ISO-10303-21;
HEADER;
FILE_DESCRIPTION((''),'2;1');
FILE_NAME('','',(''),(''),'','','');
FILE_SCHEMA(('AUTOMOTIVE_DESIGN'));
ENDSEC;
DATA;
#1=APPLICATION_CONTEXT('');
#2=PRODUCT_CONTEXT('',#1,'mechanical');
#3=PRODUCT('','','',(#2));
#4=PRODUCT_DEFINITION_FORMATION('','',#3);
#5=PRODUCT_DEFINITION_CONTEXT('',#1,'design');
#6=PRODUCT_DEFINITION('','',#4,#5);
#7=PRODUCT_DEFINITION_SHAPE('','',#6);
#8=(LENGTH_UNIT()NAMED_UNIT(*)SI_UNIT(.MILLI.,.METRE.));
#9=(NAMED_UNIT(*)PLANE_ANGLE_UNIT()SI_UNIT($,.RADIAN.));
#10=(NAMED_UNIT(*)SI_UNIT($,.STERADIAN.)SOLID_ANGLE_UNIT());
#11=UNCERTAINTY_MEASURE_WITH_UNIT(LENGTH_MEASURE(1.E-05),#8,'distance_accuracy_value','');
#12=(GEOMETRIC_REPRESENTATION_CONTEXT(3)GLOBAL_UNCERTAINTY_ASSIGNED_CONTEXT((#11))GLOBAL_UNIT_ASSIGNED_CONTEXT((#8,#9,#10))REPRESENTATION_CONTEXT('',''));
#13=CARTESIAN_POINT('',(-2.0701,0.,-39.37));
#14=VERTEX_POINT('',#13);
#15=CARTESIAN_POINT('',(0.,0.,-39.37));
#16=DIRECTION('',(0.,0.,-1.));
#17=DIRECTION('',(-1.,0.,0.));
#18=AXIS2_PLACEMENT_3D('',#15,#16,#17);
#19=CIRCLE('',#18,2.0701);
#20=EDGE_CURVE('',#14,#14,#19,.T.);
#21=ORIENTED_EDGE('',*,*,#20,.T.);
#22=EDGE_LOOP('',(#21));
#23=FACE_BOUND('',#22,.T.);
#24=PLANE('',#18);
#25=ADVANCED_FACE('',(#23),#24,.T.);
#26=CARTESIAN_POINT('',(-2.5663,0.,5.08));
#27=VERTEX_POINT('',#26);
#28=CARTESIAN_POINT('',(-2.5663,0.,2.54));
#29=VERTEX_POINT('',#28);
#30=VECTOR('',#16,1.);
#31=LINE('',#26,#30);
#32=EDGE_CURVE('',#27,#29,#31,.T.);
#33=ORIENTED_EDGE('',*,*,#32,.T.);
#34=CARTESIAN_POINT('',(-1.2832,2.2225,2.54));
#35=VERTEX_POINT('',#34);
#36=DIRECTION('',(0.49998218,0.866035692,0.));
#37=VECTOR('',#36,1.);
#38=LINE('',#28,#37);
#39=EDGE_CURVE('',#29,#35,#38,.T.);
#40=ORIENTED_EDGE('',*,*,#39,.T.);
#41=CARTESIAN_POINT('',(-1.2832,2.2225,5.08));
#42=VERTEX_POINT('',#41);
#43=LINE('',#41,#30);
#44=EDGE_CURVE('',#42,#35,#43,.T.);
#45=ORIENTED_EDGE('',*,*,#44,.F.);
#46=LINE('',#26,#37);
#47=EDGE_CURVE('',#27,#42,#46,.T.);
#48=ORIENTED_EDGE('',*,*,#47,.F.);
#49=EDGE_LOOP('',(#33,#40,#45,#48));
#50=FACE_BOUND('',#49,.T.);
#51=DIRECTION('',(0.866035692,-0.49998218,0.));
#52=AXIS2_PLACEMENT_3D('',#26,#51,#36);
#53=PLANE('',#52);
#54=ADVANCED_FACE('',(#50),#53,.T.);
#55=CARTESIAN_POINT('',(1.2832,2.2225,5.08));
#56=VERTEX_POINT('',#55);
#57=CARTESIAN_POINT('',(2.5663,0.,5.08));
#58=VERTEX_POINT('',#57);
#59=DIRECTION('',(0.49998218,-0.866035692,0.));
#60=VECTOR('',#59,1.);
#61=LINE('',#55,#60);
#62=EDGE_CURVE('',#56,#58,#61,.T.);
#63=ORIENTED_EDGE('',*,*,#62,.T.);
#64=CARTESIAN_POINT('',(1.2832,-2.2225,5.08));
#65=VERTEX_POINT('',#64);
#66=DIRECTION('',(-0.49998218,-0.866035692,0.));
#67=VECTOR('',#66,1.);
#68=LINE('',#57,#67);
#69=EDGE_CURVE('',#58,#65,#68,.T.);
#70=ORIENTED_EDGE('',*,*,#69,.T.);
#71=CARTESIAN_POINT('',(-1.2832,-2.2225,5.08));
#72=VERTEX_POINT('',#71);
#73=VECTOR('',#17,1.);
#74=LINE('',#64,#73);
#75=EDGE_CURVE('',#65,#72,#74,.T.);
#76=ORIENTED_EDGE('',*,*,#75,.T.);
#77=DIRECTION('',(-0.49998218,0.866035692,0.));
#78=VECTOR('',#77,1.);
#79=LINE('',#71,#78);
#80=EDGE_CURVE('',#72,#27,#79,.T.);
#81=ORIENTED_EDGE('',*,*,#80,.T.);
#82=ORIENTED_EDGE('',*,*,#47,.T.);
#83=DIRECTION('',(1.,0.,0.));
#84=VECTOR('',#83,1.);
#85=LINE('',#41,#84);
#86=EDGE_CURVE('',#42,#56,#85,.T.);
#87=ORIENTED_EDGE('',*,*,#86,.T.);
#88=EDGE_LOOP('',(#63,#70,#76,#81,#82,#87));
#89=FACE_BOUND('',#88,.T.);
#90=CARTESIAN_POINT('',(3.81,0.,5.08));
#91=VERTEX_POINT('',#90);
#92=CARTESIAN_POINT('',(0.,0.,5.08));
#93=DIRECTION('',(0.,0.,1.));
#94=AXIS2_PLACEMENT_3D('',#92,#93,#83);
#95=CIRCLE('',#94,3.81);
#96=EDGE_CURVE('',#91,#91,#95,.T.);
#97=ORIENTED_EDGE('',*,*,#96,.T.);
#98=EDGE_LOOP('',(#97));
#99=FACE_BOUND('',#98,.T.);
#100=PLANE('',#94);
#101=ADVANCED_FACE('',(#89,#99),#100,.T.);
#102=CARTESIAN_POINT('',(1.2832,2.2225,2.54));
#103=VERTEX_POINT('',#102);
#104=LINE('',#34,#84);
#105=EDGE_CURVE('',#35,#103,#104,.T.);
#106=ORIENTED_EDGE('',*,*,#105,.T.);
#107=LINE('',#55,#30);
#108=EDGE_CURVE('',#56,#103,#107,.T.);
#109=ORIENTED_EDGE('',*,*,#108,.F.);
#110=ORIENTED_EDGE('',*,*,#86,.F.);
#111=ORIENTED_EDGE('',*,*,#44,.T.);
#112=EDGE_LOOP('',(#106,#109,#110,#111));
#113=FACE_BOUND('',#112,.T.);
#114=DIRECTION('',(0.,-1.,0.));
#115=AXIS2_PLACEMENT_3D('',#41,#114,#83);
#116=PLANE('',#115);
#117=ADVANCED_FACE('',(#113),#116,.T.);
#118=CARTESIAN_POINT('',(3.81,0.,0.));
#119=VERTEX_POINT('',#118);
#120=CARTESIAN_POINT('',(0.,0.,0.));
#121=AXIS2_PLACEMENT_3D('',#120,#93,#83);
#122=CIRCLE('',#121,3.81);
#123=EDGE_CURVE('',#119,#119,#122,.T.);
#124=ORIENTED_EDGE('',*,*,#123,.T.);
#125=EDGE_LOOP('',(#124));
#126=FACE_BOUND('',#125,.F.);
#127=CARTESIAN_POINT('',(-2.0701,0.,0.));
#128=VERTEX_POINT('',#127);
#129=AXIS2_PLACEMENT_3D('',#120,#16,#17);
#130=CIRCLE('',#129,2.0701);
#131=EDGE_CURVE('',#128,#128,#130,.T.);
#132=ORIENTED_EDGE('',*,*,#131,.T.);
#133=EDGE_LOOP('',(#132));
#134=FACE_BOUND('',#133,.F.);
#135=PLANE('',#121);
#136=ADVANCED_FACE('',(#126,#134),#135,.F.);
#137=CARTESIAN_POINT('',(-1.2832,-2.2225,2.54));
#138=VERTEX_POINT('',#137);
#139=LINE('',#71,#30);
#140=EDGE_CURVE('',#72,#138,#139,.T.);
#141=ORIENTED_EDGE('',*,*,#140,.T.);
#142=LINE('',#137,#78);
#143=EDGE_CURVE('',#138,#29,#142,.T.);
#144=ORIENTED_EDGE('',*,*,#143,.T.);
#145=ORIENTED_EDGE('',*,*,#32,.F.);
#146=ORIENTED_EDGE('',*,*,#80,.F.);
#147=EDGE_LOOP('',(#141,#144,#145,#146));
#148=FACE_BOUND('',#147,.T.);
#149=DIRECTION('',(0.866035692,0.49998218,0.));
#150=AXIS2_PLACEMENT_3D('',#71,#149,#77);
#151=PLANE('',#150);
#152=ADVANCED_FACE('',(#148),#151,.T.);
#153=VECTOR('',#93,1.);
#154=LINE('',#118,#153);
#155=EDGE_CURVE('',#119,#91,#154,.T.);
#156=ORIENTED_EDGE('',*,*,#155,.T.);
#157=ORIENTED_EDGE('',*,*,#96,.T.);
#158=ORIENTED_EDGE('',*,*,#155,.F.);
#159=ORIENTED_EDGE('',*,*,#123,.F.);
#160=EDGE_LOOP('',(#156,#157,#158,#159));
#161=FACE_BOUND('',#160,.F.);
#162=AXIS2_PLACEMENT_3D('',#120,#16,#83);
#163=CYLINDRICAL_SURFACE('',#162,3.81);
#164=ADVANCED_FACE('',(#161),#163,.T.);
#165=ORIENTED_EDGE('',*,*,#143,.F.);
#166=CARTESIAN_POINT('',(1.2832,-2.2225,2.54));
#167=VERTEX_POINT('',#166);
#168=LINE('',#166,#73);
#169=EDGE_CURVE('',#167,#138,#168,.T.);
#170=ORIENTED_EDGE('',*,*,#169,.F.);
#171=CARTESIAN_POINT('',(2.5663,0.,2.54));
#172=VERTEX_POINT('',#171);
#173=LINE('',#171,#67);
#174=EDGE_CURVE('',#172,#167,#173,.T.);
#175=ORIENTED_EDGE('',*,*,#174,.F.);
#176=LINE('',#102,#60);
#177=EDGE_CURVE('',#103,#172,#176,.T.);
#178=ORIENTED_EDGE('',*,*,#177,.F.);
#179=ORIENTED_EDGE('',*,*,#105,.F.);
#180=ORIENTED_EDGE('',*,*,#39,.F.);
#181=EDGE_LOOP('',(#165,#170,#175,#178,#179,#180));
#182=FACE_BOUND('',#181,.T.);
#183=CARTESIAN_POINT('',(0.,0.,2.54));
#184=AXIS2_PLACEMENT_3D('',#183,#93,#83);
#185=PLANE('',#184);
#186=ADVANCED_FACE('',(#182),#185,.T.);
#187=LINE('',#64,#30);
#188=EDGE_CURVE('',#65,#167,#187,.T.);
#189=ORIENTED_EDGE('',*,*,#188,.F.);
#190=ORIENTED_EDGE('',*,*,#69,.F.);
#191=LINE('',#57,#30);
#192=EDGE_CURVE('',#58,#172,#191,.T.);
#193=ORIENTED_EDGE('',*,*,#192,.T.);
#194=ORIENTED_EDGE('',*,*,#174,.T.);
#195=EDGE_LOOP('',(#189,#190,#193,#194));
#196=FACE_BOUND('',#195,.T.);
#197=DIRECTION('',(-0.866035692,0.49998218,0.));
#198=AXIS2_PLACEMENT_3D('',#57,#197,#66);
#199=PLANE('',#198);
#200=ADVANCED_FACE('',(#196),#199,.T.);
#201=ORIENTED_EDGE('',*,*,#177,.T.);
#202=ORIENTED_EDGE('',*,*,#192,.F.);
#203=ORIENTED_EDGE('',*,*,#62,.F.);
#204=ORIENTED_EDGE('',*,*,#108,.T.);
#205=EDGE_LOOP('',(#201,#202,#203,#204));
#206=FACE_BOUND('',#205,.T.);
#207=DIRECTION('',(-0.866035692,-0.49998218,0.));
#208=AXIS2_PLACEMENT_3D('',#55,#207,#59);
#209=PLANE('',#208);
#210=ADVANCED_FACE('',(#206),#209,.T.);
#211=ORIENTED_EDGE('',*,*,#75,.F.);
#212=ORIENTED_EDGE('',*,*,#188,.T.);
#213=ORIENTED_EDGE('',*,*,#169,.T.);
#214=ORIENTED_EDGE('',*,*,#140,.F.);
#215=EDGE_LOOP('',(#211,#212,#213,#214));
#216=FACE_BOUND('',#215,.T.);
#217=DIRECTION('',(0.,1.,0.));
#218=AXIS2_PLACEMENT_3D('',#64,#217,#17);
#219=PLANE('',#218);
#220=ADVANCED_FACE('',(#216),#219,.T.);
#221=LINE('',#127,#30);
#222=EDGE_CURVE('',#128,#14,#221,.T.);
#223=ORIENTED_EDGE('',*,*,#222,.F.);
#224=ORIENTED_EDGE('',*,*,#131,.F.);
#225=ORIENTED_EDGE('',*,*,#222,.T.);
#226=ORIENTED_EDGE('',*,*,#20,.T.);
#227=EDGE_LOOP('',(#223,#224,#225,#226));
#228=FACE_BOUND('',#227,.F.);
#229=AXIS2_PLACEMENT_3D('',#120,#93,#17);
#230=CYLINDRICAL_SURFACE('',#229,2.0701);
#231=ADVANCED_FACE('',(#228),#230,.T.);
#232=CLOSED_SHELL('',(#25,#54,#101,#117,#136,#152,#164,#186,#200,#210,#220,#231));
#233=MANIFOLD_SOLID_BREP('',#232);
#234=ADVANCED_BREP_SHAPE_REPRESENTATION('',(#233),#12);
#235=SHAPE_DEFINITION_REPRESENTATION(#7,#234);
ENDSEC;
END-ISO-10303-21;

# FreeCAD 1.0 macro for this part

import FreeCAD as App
import Part
import Sketcher

V = App.Vector
Q = App.Units.Quantity


def add_polygon(sketch, points):
    """Adds a closed chain of lines whose ends are joined by coincident constraints."""
    first, n = sketch.GeometryCount, len(points)
    for a, b in zip(points, points[1:] + points[:1]):
        sketch.addGeometry(Part.LineSegment(App.Vector(*a, 0), App.Vector(*b, 0)), False)
    for i in range(n):
        sketch.addConstraint(Sketcher.Constraint("Coincident", first + i, 2, first + (i + 1) % n, 1))

doc = App.newDocument("Part")
params = doc.addObject("Spreadsheet::Sheet", "Params")
for row, (alias, value) in enumerate([
    ("sketch1_diameter", "0.3 in"),
    ("pad1_length", "0.2 in"),
    ("pocket1_length", "0.1 in"),
    ("sketch3_diameter", "0.163 in"),
    ("pad2_length", "1.55 in"),
], start=1):
    params.set(f"A{row}", alias)
    params.set(f"B{row}", "=" + value)
    params.setAlias(f"B{row}", alias)

body = doc.addObject("PartDesign::Body", "Body")

sketch1 = body.newObject("Sketcher::SketchObject", "Sketch")
sketch1.AttachmentSupport = (doc.getObject("XY_Plane"), [""])
sketch1.MapMode = "FlatFace"
sketch1.addGeometry(Part.Circle(V(0, 0, 0), V(0, 0, 1), 3.8), False)
sketch1.addConstraint([
    Sketcher.Constraint("Coincident", 0, 3, -1, 1),
    Sketcher.Constraint("Diameter", 0, Q("0.3 in")),
])
sketch1.setExpression("Constraints[1]", "Params.sketch1_diameter")
pad1 = body.newObject("PartDesign::Pad", "Pad")
pad1.Profile = sketch1
pad1.setExpression("Length", "Params.pad1_length")

sketch2 = body.newObject("Sketcher::SketchObject", "Sketch001")
sketch2.AttachmentSupport = (doc.getObject("XY_Plane"), [""])
sketch2.MapMode = "FlatFace"
sketch2.AttachmentOffset = App.Placement(V(0, 0, 0.2 * 25.4), App.Rotation())
add_polygon(sketch2, [(2.6, 0), (1.3, 2.2), (-1.3, 2.2), (-2.6, 0), (-1.3, -2.2), (1.3, -2.2)])
sketch2.addConstraint([
    Sketcher.Constraint("Horizontal", 1),
    Sketcher.Constraint("Horizontal", 4),
    Sketcher.Constraint("Symmetric", 0, 2, 3, 2, -1, 1),
    Sketcher.Constraint("Symmetric", 2, 2, 5, 2, -1, 1),
    Sketcher.Constraint("PointOnObject", 2, 2, -1),
    Sketcher.Constraint("Parallel", 2, 5),
    Sketcher.Constraint("Vertical", 1, 2, 3, 2),
    Sketcher.Constraint("Angle", 0, Q("119.9988 deg")),
    Sketcher.Constraint("DistanceY", 3, 2, 1, 2, Q("0.175 in")),
    Sketcher.Constraint("DistanceX", 1, 2, 1, 1, Q("2.5664 mm")),
])
pocket1 = body.newObject("PartDesign::Pocket", "Pocket")
pocket1.Profile = sketch2
pocket1.setExpression("Length", "Params.pocket1_length")

sketch3 = body.newObject("Sketcher::SketchObject", "Sketch002")
sketch3.AttachmentSupport = (doc.getObject("XY_Plane"), [""])
sketch3.MapMode = "FlatFace"
sketch3.addGeometry(Part.Circle(V(0, 0, 0), V(0, 0, 1), 2.1), False)
sketch3.addConstraint([
    Sketcher.Constraint("Coincident", 0, 3, -1, 1),
    Sketcher.Constraint("Diameter", 0, Q("0.163 in")),
])
sketch3.setExpression("Constraints[1]", "Params.sketch3_diameter")
pad2 = body.newObject("PartDesign::Pad", "Pad001")
pad2.Profile = sketch3
pad2.setExpression("Length", "Params.pad2_length")
pad2.Reversed = True

doc.recompute()
